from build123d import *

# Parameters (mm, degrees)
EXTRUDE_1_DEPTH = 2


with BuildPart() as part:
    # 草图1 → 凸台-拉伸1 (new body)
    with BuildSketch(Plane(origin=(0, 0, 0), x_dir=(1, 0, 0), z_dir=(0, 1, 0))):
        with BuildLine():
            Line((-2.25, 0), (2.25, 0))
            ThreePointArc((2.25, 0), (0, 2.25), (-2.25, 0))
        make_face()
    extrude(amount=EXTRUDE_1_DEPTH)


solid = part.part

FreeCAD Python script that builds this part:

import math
import FreeCAD as App
import Part
import Sketcher

doc = App.newDocument("Part")
body = doc.addObject("PartDesign::Body", "Body")

sketch1 = body.newObject("Sketcher::SketchObject", "Sketch")
sketch1.AttachmentSupport = (doc.getObject("XZ_Plane"), [""])
sketch1.MapMode = "FlatFace"
sketch1.addGeometry([
    Part.LineSegment(App.Vector(-2.25, 0, 0), App.Vector(2.25, 0, 0)),
    Part.ArcOfCircle(Part.Circle(App.Vector(0, 0, 0), App.Vector(0, 0, 1), 2.25), math.radians(180), math.radians(360)),
], False)
sketch1.addConstraint([
    Sketcher.Constraint("Coincident", 0, 1, 1, 1),
    Sketcher.Constraint("Coincident", 1, 2, 0, 2),
    Sketcher.Constraint("Horizontal", 0),
    Sketcher.Constraint("Coincident", 1, 3, -1, 1),
    Sketcher.Constraint("PointOnObject", 0, 1, -1),
    Sketcher.Constraint("Radius", 1, 2.25),
])
pad1 = body.newObject("PartDesign::Pad", "Pad")
pad1.Profile = sketch1
pad1.Length = 2
pad1.Reversed = True

doc.recompute()
